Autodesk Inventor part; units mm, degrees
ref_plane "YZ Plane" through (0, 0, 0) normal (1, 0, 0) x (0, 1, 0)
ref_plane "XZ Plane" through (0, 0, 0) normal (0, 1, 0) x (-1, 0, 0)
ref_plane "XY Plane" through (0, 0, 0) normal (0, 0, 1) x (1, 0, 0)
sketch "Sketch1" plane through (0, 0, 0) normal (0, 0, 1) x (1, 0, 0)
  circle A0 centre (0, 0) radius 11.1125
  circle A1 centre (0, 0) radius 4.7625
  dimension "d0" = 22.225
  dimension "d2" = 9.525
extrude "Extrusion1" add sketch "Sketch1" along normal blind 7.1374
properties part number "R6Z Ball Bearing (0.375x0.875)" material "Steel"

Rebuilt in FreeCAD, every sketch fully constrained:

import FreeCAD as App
import Part
import Sketcher
Q = App.Units.Quantity

doc = App.newDocument("Part")
body = doc.addObject("PartDesign::Body", "Body")

sketch1 = body.newObject("Sketcher::SketchObject", "Sketch")
sketch1.AttachmentSupport = (doc.getObject("XY_Plane"), [""])
sketch1.MapMode = "FlatFace"
sketch1.addGeometry([
    Part.Circle(App.Vector(0, 0, 0), App.Vector(0, 0, 1), 11.1),
    Part.Circle(App.Vector(0, 0, 0), App.Vector(0, 0, 1), 4.8),
], False)
sketch1.addConstraint([
    Sketcher.Constraint("Coincident", 0, 3, -1, 1),
    Sketcher.Constraint("Coincident", 1, 3, -1, 1),
    Sketcher.Constraint("Diameter", 0, Q("0.875 in")),
    Sketcher.Constraint("Diameter", 1, Q("0.375 in")),
])
pad1 = body.newObject("PartDesign::Pad", "Pad")
pad1.Profile = sketch1
pad1.Length = Q("0.281 in")

doc.recompute()
